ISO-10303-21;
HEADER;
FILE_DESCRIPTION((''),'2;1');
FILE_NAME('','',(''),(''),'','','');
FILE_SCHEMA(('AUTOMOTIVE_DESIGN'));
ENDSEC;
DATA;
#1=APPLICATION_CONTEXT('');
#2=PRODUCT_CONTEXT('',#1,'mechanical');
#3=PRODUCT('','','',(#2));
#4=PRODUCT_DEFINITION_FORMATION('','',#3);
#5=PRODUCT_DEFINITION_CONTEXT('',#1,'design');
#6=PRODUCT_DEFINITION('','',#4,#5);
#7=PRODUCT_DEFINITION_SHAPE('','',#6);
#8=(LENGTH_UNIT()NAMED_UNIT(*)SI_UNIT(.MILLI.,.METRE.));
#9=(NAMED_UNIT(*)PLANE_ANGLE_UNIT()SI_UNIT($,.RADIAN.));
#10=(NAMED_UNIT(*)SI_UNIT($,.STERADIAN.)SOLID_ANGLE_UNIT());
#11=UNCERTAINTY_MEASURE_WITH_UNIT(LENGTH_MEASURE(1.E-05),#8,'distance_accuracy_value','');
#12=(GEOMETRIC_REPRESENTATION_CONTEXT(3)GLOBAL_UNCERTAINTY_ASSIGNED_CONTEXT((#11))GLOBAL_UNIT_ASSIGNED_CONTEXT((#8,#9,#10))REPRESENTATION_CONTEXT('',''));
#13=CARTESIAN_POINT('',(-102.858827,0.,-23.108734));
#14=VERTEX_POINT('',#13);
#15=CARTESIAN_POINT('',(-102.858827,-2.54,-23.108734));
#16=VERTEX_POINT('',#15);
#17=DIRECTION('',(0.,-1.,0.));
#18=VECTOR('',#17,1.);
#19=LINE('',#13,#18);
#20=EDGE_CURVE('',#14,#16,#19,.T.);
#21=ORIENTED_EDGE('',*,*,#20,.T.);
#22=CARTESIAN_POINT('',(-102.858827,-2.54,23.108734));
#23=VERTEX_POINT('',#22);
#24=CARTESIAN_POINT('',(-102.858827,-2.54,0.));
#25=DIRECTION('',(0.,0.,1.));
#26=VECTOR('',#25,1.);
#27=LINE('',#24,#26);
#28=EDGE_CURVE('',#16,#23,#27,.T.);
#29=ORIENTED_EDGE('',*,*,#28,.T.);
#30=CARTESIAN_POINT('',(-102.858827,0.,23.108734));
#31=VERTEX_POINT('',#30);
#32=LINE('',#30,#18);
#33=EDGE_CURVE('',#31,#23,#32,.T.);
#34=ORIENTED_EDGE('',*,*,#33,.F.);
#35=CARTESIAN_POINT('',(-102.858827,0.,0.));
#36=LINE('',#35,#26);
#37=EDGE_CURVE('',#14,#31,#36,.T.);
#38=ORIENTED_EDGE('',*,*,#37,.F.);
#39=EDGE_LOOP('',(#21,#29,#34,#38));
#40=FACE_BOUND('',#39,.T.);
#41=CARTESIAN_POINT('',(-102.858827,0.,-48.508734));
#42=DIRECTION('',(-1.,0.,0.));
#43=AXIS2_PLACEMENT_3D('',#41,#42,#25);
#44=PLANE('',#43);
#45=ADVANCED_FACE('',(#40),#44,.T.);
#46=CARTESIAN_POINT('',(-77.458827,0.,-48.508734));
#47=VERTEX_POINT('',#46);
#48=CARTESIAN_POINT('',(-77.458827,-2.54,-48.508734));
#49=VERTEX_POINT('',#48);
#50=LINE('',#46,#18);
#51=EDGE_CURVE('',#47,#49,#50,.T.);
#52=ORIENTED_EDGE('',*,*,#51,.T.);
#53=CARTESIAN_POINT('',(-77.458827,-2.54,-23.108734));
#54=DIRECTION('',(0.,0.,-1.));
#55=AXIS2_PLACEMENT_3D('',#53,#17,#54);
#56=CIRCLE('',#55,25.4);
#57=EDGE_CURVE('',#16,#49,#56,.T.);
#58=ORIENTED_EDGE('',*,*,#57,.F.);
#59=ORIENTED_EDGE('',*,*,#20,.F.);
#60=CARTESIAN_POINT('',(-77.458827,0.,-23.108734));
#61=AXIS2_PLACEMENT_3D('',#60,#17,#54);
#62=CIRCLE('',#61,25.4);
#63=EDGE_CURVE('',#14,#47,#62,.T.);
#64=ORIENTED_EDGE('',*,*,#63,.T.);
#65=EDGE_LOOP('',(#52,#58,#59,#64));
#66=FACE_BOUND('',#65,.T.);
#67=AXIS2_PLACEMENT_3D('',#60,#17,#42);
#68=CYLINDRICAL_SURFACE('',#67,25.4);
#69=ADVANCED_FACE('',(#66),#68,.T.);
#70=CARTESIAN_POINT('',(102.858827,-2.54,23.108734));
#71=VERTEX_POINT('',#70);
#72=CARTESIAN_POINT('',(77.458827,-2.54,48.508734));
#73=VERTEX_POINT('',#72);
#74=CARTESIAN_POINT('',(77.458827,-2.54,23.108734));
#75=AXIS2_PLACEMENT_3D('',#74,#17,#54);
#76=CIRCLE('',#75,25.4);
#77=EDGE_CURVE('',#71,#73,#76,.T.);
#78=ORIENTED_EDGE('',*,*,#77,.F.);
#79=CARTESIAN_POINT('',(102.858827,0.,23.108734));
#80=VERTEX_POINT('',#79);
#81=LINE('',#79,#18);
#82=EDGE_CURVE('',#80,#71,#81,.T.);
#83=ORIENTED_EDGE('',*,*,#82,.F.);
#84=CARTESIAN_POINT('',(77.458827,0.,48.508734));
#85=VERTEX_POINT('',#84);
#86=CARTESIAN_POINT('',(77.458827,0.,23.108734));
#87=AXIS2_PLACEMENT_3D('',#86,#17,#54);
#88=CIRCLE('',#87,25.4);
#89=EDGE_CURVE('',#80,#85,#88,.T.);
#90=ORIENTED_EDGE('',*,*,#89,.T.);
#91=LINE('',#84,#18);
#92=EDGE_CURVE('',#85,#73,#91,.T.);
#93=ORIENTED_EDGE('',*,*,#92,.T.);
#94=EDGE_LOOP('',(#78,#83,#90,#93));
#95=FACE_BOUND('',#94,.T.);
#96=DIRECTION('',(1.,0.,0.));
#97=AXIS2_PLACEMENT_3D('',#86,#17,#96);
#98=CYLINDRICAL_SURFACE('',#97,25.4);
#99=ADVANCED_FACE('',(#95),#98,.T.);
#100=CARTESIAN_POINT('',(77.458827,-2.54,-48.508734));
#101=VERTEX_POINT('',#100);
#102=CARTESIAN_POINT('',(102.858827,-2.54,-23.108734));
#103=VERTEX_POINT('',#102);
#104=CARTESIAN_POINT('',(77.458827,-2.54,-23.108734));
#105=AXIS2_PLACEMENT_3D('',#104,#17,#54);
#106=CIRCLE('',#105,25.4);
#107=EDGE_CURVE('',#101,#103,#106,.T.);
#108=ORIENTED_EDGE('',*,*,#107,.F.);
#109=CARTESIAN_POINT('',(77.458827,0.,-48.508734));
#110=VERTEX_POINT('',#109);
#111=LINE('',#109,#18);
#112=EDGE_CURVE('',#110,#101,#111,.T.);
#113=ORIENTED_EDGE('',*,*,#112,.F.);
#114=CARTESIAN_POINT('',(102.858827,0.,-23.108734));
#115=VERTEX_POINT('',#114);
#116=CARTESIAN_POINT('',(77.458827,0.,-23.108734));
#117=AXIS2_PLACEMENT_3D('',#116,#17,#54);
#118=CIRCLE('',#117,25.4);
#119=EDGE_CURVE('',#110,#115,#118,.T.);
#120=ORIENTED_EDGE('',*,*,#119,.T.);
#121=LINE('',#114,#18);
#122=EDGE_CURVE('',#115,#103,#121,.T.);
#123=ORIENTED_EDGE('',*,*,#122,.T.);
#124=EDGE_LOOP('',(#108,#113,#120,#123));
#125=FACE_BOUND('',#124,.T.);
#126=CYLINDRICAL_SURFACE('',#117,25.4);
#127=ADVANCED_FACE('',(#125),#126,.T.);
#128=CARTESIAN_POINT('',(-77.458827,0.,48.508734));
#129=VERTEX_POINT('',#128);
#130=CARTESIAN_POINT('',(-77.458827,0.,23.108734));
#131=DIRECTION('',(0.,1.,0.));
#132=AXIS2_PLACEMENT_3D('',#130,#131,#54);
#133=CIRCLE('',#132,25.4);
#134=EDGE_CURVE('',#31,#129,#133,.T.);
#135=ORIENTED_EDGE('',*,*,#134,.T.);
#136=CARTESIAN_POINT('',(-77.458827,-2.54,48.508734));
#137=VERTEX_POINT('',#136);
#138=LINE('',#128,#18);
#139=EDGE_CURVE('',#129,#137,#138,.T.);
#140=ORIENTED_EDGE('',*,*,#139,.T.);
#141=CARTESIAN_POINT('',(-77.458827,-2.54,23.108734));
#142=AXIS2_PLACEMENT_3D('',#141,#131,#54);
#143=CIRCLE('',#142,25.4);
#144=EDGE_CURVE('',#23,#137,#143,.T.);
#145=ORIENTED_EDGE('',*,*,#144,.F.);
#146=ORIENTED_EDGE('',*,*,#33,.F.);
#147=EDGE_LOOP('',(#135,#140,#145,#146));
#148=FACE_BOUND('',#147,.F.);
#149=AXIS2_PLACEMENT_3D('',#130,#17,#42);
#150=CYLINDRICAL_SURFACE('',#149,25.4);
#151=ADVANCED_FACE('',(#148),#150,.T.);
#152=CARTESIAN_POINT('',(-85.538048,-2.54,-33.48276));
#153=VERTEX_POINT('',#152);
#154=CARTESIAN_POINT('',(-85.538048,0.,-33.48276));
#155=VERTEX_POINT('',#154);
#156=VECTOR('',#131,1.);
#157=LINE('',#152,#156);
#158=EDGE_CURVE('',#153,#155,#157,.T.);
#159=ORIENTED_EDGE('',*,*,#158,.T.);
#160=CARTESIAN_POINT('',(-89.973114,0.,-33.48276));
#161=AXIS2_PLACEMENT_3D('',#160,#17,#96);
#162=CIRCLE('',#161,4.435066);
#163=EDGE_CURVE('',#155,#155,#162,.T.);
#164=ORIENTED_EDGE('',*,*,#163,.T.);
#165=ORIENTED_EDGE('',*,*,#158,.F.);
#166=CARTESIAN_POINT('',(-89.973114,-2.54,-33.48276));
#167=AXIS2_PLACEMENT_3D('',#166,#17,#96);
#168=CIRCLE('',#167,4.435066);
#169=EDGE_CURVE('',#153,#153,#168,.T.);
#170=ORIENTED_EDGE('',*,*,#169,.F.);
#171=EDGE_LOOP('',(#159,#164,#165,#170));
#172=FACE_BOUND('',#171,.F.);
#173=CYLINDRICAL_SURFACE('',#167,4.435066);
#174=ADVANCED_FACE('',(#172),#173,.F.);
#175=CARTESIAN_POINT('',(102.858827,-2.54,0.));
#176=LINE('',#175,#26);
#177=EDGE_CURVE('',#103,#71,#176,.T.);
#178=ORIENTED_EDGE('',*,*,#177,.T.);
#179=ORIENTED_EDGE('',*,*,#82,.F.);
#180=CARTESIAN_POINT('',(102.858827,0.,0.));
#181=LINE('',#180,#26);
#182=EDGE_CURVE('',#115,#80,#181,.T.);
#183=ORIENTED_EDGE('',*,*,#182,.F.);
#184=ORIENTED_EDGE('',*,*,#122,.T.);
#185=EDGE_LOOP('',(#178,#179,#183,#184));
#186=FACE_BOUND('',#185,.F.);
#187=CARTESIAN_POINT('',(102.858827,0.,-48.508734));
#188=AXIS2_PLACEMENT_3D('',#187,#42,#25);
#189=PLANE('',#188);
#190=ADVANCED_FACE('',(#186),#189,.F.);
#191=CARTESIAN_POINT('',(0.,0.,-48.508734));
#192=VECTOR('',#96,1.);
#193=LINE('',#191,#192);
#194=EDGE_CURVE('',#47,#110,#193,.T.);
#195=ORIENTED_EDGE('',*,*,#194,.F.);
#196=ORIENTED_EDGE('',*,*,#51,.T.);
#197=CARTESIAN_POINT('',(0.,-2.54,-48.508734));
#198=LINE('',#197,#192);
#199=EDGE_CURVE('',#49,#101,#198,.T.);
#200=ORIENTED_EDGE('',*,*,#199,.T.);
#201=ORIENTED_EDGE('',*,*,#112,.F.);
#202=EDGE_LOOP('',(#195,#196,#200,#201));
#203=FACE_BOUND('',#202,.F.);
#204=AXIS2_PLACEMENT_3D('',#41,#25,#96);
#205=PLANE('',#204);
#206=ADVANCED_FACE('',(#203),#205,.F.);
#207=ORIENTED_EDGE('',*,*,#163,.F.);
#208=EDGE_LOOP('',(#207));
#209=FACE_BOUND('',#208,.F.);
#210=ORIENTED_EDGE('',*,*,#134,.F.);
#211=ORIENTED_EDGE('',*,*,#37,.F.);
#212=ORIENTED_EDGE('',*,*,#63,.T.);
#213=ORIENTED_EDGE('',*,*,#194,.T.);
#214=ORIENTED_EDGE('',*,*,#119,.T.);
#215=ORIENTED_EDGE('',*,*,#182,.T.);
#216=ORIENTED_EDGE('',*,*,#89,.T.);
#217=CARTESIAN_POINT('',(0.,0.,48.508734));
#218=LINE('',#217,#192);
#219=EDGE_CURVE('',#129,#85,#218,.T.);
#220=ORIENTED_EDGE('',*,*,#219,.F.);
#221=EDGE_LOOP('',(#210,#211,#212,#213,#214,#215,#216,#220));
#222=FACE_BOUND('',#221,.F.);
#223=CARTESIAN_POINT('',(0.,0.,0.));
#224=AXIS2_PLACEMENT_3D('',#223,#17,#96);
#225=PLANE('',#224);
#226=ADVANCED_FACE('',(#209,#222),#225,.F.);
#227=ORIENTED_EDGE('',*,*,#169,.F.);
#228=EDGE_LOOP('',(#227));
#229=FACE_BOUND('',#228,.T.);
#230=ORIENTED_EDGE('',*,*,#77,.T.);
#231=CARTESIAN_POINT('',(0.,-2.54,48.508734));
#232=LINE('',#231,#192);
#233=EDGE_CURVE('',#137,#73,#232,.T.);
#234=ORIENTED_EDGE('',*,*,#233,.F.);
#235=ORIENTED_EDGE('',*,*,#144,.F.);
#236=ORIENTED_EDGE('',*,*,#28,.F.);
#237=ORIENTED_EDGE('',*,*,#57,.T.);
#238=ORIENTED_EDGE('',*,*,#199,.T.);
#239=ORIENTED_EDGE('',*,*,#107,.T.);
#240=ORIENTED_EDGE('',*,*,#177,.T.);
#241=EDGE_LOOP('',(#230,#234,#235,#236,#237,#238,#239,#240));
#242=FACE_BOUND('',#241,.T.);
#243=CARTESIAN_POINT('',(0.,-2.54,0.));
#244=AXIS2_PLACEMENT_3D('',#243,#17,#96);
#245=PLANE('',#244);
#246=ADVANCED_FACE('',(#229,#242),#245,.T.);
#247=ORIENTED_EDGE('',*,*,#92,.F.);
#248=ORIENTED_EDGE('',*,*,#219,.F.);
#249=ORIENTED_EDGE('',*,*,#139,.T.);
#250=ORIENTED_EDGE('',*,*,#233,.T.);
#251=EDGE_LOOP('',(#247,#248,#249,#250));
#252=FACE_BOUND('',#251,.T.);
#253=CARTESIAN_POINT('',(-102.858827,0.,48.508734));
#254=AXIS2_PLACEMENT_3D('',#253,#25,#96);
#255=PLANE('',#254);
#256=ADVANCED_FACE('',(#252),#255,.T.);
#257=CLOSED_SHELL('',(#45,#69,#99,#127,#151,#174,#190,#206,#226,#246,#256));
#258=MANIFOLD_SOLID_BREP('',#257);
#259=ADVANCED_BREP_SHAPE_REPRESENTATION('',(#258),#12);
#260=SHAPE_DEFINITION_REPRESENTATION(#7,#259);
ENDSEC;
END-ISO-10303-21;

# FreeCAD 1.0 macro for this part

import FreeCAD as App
import Part
import Sketcher
Q = App.Units.Quantity


def edges_at(feature, points):
    """Names of the edges that pass closest to the given points."""
    edges = feature.Shape.Edges
    near = lambda p: min(range(len(edges)), key=lambda i: edges[i].distToShape(Part.Vertex(*p))[0])
    return sorted({f"Edge{near(p) + 1}" for p in points})

doc = App.newDocument("Part")
body = doc.addObject("PartDesign::Body", "Body")

sketch1 = body.newObject("Sketcher::SketchObject", "Sketch")
sketch1.AttachmentSupport = (doc.getObject("XZ_Plane"), [""])
sketch1.MapMode = "FlatFace"
sketch1.addGeometry(Part.LineSegment(App.Vector(-103, 49, 0), App.Vector(-103, -49, 0)), False)
sketch1.addGeometry(Part.LineSegment(App.Vector(-103, -49, 0), App.Vector(103, -49, 0)), False)
sketch1.addGeometry(Part.LineSegment(App.Vector(103, -49, 0), App.Vector(103, 49, 0)), False)
sketch1.addGeometry(Part.LineSegment(App.Vector(103, 49, 0), App.Vector(-103, 49, 0)), False)
sketch1.addConstraint(Sketcher.Constraint("Coincident", 0, 2, 1, 1))
sketch1.addConstraint(Sketcher.Constraint("Coincident", 1, 2, 2, 1))
sketch1.addConstraint(Sketcher.Constraint("Coincident", 2, 2, 3, 1))
sketch1.addConstraint(Sketcher.Constraint("Coincident", 3, 2, 0, 1))
sketch1.addConstraint(Sketcher.Constraint("Vertical", 0))
sketch1.addConstraint(Sketcher.Constraint("Horizontal", 1))
sketch1.addConstraint(Sketcher.Constraint("Vertical", 2))
sketch1.addConstraint(Sketcher.Constraint("Horizontal", 3))
sketch1.addConstraint(Sketcher.Constraint("Symmetric", 0, 2, 2, 2, -1, 1))
sketch1.addConstraint(Sketcher.Constraint("DistanceX", 1, 1, 1, 2, Q("205.717654 mm")))
sketch1.addConstraint(Sketcher.Constraint("DistanceY", 0, 2, 0, 1, Q("97.017468 mm")))
pad1 = body.newObject("PartDesign::Pad", "Pad")
pad1.Profile = sketch1
pad1.Length = Q("0.1 in")
doc.recompute()

fillet = body.newObject("PartDesign::Fillet", "Fillet")
fillet.Base = (pad1, edges_at(pad1, [
    (102.859, -1.27, 48.509),
    (102.859, -1.27, -48.509),
    (-102.859, -1.27, -48.509),
    (-102.859, -1.27, 48.509),
]))
fillet.Radius = Q("1 in")

sketch2 = body.newObject("Sketcher::SketchObject", "Sketch001")
sketch2.AttachmentSupport = (doc.getObject("XZ_Plane"), [""])
sketch2.MapMode = "FlatFace"
sketch2.AttachmentOffset = App.Placement(App.Vector(0, 0, 0.1 * 25.4), App.Rotation())
sketch2.addGeometry(Part.Circle(App.Vector(-90, -33.5, 0), App.Vector(0, 0, 1), 4.4), False)
sketch2.addConstraint(Sketcher.Constraint("Diameter", 0, Q("8.870132 mm")))
sketch2.addConstraint(Sketcher.Constraint("DistanceY", 0, 3, -1, 1, Q("33.48276 mm")))
sketch2.addConstraint(Sketcher.Constraint("DistanceX", 0, 3, -1, 1, Q("89.973114 mm")))
pocket1 = body.newObject("PartDesign::Pocket", "Pocket")
pocket1.Profile = sketch2
pocket1.Length = Q("0.1 in")

doc.recompute()
